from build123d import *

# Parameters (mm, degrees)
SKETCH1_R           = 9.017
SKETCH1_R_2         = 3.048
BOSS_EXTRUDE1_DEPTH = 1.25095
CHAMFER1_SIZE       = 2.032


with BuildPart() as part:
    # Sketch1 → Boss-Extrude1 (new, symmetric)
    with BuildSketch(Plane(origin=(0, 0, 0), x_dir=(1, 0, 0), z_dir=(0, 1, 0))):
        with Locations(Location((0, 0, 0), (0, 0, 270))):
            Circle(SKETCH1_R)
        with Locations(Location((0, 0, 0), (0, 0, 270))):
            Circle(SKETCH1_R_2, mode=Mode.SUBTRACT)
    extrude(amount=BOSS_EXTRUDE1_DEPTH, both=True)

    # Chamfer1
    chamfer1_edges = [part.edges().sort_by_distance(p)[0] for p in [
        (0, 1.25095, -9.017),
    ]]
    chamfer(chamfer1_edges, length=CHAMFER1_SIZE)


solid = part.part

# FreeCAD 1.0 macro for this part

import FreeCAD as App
import Part
import Sketcher

V = App.Vector
Q = App.Units.Quantity


def edges_at(feature, points):
    """Names of the edges that pass closest to the given points."""
    edges = feature.Shape.Edges
    near = lambda p: min(range(len(edges)), key=lambda i: edges[i].distToShape(Part.Vertex(*p))[0])
    return sorted({f"Edge{near(p) + 1}" for p in points})

doc = App.newDocument("Part")
body = doc.addObject("PartDesign::Body", "Body")

sketch1 = body.newObject("Sketcher::SketchObject", "Sketch")
sketch1.AttachmentSupport = (doc.getObject("XZ_Plane"), [""])
sketch1.MapMode = "FlatFace"
sketch1.addGeometry([
    Part.Circle(V(0, 0, 0), V(0, 0, 1), 9),
    Part.Circle(V(0, 0, 0), V(0, 0, 1), 3),
], False)
sketch1.addConstraint([
    Sketcher.Constraint("Coincident", 0, 3, -1, 1),
    Sketcher.Constraint("Coincident", 1, 3, -1, 1),
    Sketcher.Constraint("Diameter", 0, Q("0.71 in")),
    Sketcher.Constraint("Diameter", 1, Q("0.24 in")),
])
pad1 = body.newObject("PartDesign::Pad", "Pad")
pad1.Profile = sketch1
pad1.Length = Q("0.0985 in")
pad1.Midplane = True
doc.recompute()

chamfer = body.newObject("PartDesign::Chamfer", "Chamfer")
chamfer.Base = (pad1, edges_at(pad1, [(0, 1.251, -9.017)]))
chamfer.Size = Q("0.08 in")

doc.recompute()
